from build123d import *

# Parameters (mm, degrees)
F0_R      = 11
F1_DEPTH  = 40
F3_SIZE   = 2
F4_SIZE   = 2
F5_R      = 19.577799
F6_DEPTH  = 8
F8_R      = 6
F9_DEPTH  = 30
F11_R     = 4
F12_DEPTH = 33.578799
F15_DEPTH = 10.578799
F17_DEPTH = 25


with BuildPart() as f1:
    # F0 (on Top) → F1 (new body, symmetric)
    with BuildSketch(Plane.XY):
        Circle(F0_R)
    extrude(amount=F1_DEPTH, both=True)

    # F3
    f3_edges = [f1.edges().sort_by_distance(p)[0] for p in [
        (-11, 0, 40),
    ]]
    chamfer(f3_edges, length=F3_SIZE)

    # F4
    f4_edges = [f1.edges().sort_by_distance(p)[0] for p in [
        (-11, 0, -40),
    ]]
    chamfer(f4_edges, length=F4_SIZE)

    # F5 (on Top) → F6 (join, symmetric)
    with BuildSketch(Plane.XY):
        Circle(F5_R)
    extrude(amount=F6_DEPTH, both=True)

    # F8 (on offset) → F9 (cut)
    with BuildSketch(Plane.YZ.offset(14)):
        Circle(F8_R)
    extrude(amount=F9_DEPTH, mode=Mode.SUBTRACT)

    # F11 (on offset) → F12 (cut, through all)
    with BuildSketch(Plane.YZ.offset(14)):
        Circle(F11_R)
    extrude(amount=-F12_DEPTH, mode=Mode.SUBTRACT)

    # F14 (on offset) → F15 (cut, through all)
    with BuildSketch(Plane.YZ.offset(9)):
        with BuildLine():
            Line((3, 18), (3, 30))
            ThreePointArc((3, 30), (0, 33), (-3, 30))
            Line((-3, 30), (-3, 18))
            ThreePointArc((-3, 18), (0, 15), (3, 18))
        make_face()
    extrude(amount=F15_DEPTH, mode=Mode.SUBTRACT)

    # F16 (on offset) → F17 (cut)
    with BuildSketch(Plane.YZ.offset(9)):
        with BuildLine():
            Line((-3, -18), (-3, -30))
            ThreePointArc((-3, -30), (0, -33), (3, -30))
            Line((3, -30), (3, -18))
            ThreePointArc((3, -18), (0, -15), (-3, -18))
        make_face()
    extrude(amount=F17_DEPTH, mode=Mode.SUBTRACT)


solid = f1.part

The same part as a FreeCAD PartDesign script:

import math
import FreeCAD as App
import Part
import Sketcher

V = App.Vector


def edges_at(feature, points):
    """Names of the edges that pass closest to the given points."""
    edges = feature.Shape.Edges
    near = lambda p: min(range(len(edges)), key=lambda i: edges[i].distToShape(Part.Vertex(*p))[0])
    return sorted({f"Edge{near(p) + 1}" for p in points})

doc = App.newDocument("Part")
params = doc.addObject("Spreadsheet::Sheet", "Params")
for row, (alias, value) in enumerate([
    ("sketch1_diameter", "22 mm"),
    ("pad1_length", "80 mm"),
    ("chamfer_size", "2 mm"),
    ("chamfer2_size", "2 mm"),
    ("pad2_length", "16 mm"),
    ("sketch3_diameter", "12 mm"),
    ("pocket1_length", "30 mm"),
    ("sketch4_diameter", "8 mm"),
    ("sketch5_radius", "3 mm"),
    ("sketch5_height", "12 mm"),
    ("sketch6_radius", "3 mm"),
    ("sketch6_height", "12 mm"),
    ("pocket4_length", "25 mm"),
], start=1):
    params.set(f"A{row}", alias)
    params.set(f"B{row}", "=" + value)
    params.setAlias(f"B{row}", alias)

body = doc.addObject("PartDesign::Body", "Body")

# Sketch on XY plane
sketch1 = doc.addObject("Sketcher::SketchObject", "Sketch")
body.addObject(sketch1)
sketch1.AttachmentSupport = (doc.XY_Plane, [""])
sketch1.MapMode = "FlatFace"
sketch1.addGeometry(Part.Circle(V(0, 0, 0), V(0, 0, 1), 11), False)
sketch1.addConstraint(Sketcher.Constraint("Coincident", 0, 3, -1, 1))
sketch1.addConstraint(Sketcher.Constraint("Diameter", 0, 22.0))
sketch1.setExpression("Constraints[1]", "Params.sketch1_diameter")
pad1 = doc.addObject("PartDesign::Pad", "Pad")
body.addObject(pad1)
pad1.Profile = sketch1
pad1.setExpression("Length", "Params.pad1_length")
pad1.Midplane = True
doc.recompute()

chamfer = doc.addObject("PartDesign::Chamfer", "Chamfer")
body.addObject(chamfer)
chamfer.Base = (pad1, edges_at(pad1, [(-11, 0, 40)]))
chamfer.setExpression("Size", "Params.chamfer_size")
doc.recompute()

chamfer2 = doc.addObject("PartDesign::Chamfer", "Chamfer001")
body.addObject(chamfer2)
chamfer2.Base = (chamfer, edges_at(chamfer, [(-11, 0, -40)]))
chamfer2.setExpression("Size", "Params.chamfer2_size")

# Sketch on XY plane
sketch2 = doc.addObject("Sketcher::SketchObject", "Sketch001")
body.addObject(sketch2)
sketch2.AttachmentSupport = (doc.XY_Plane, [""])
sketch2.MapMode = "FlatFace"
sketch2.addGeometry(Part.Circle(V(0, 0, 0), V(0, 0, 1), 20), False)
sketch2.addConstraint(Sketcher.Constraint("Coincident", 0, 3, -1, 1))
sketch2.addConstraint(Sketcher.Constraint("Diameter", 0, 39.155598))
pad2 = doc.addObject("PartDesign::Pad", "Pad001")
body.addObject(pad2)
pad2.Profile = sketch2
pad2.setExpression("Length", "Params.pad2_length")
pad2.Midplane = True

# Sketch on YZ plane
sketch3 = doc.addObject("Sketcher::SketchObject", "Sketch002")
body.addObject(sketch3)
sketch3.AttachmentSupport = (doc.YZ_Plane, [""])
sketch3.MapMode = "FlatFace"
sketch3.AttachmentOffset = App.Placement(V(0, 0, 14), App.Rotation())
sketch3.addGeometry(Part.Circle(V(0, 0, 0), V(0, 0, 1), 6), False)
sketch3.addConstraint(Sketcher.Constraint("Coincident", 0, 3, -1, 1))
sketch3.addConstraint(Sketcher.Constraint("Diameter", 0, 12.0))
sketch3.setExpression("Constraints[1]", "Params.sketch3_diameter")
pocket1 = doc.addObject("PartDesign::Pocket", "Pocket")
body.addObject(pocket1)
pocket1.Profile = sketch3
pocket1.setExpression("Length", "Params.pocket1_length")
pocket1.Reversed = True

# Sketch on YZ plane
sketch4 = doc.addObject("Sketcher::SketchObject", "Sketch003")
body.addObject(sketch4)
sketch4.AttachmentSupport = (doc.YZ_Plane, [""])
sketch4.MapMode = "FlatFace"
sketch4.AttachmentOffset = App.Placement(V(0, 0, 14), App.Rotation())
sketch4.addGeometry(Part.Circle(V(0, 0, 0), V(0, 0, 1), 4), False)
sketch4.addConstraint(Sketcher.Constraint("Coincident", 0, 3, -1, 1))
sketch4.addConstraint(Sketcher.Constraint("Diameter", 0, 8.0))
sketch4.setExpression("Constraints[1]", "Params.sketch4_diameter")
pocket2 = doc.addObject("PartDesign::Pocket", "Pocket001")
body.addObject(pocket2)
pocket2.Profile = sketch4
pocket2.Type = "ThroughAll"

# Sketch on YZ plane
sketch5 = doc.addObject("Sketcher::SketchObject", "Sketch004")
body.addObject(sketch5)
sketch5.AttachmentSupport = (doc.YZ_Plane, [""])
sketch5.MapMode = "FlatFace"
sketch5.AttachmentOffset = App.Placement(V(0, 0, 9), App.Rotation())
sketch5.addGeometry(Part.LineSegment(V(3, 18, 0), V(3, 30, 0)), False)
sketch5.addGeometry(Part.ArcOfCircle(Part.Circle(V(0, 30, 0), V(0, 0, 1), 3), math.radians(0), math.radians(180)), False)
sketch5.addGeometry(Part.LineSegment(V(-3, 30, 0), V(-3, 18, 0)), False)
sketch5.addGeometry(Part.ArcOfCircle(Part.Circle(V(0, 18, 0), V(0, 0, 1), 3), math.radians(180), math.radians(360)), False)
sketch5.addConstraint(Sketcher.Constraint("Tangent", 0, 2, 1, 1))
sketch5.addConstraint(Sketcher.Constraint("Tangent", 1, 2, 2, 1))
sketch5.addConstraint(Sketcher.Constraint("Tangent", 2, 2, 3, 1))
sketch5.addConstraint(Sketcher.Constraint("Tangent", 3, 2, 0, 1))
sketch5.addConstraint(Sketcher.Constraint("Vertical", 0))
sketch5.addConstraint(Sketcher.Constraint("Vertical", 2))
sketch5.addConstraint(Sketcher.Constraint("PointOnObject", 1, 3, -2))
sketch5.addConstraint(Sketcher.Constraint("Radius", 1, 3.0))
sketch5.addConstraint(Sketcher.Constraint("DistanceY", 0, 1, 0, 2, 12.0))
sketch5.addConstraint(Sketcher.Constraint("DistanceY", -1, 1, 1, 3, 30.0))
sketch5.setExpression("Constraints[7]", "Params.sketch5_radius")
sketch5.setExpression("Constraints[8]", "Params.sketch5_height")
pocket3 = doc.addObject("PartDesign::Pocket", "Pocket002")
body.addObject(pocket3)
pocket3.Profile = sketch5
pocket3.Type = "ThroughAll"
pocket3.Reversed = True

# Sketch on YZ plane
sketch6 = doc.addObject("Sketcher::SketchObject", "Sketch005")
body.addObject(sketch6)
sketch6.AttachmentSupport = (doc.YZ_Plane, [""])
sketch6.MapMode = "FlatFace"
sketch6.AttachmentOffset = App.Placement(V(0, 0, 9), App.Rotation())
sketch6.addGeometry(Part.LineSegment(V(-3, -18, 0), V(-3, -30, 0)), False)
sketch6.addGeometry(Part.ArcOfCircle(Part.Circle(V(0, -30, 0), V(0, 0, 1), 3), math.radians(180), math.radians(360)), False)
sketch6.addGeometry(Part.LineSegment(V(3, -30, 0), V(3, -18, 0)), False)
sketch6.addGeometry(Part.ArcOfCircle(Part.Circle(V(0, -18, 0), V(0, 0, 1), 3), math.radians(0), math.radians(180)), False)
sketch6.addConstraint(Sketcher.Constraint("Tangent", 0, 2, 1, 1))
sketch6.addConstraint(Sketcher.Constraint("Tangent", 1, 2, 2, 1))
sketch6.addConstraint(Sketcher.Constraint("Tangent", 2, 2, 3, 1))
sketch6.addConstraint(Sketcher.Constraint("Tangent", 3, 2, 0, 1))
sketch6.addConstraint(Sketcher.Constraint("Vertical", 0))
sketch6.addConstraint(Sketcher.Constraint("Vertical", 2))
sketch6.addConstraint(Sketcher.Constraint("PointOnObject", 1, 3, -2))
sketch6.addConstraint(Sketcher.Constraint("Radius", 1, 3.0))
sketch6.addConstraint(Sketcher.Constraint("DistanceY", 0, 2, 0, 1, 12.0))
sketch6.addConstraint(Sketcher.Constraint("DistanceY", 1, 3, -1, 1, 30.0))
sketch6.setExpression("Constraints[7]", "Params.sketch6_radius")
sketch6.setExpression("Constraints[8]", "Params.sketch6_height")
pocket4 = doc.addObject("PartDesign::Pocket", "Pocket003")
body.addObject(pocket4)
pocket4.Profile = sketch6
pocket4.setExpression("Length", "Params.pocket4_length")
pocket4.Reversed = True

doc.recompute()
